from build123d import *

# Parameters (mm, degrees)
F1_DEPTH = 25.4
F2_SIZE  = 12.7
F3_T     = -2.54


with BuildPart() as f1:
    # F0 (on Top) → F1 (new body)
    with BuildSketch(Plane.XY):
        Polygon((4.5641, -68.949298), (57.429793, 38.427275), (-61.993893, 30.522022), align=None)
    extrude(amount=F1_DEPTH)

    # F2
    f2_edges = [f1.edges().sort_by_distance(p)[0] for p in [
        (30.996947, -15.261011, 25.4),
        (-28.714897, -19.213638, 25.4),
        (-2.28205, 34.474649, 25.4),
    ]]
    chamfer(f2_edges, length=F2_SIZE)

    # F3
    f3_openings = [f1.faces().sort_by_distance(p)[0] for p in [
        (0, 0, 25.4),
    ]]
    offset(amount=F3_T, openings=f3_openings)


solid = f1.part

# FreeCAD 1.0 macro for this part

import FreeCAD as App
import Part
import Sketcher
from FreeCAD import Vector
Q = App.Units.Quantity


def edges_at(feature, points):
    """Names of the edges that pass closest to the given points."""
    edges = feature.Shape.Edges
    near = lambda p: min(range(len(edges)), key=lambda i: edges[i].distToShape(Part.Vertex(*p))[0])
    return sorted({f"Edge{near(p) + 1}" for p in points})


def faces_at(feature, points):
    """Names of the faces that lie closest to the given points."""
    faces = feature.Shape.Faces
    near = lambda p: min(range(len(faces)), key=lambda i: faces[i].distToShape(Part.Vertex(*p))[0])
    return sorted({f"Face{near(p) + 1}" for p in points})

doc = App.newDocument("Part")
params = doc.addObject("Spreadsheet::Sheet", "Params")
for row, (alias, value) in enumerate([
    ("pad1_length", "1 in"),
    ("chamfer_size", "0.5 in"),
    ("thickness_wall", "0.1 in"),
], start=1):
    params.set(f"A{row}", alias)
    params.set(f"B{row}", "=" + value)
    params.setAlias(f"B{row}", alias)

body = doc.addObject("PartDesign::Body", "Body")

# Sketch on XY plane
sketch1 = body.newObject("Sketcher::SketchObject", "Sketch")
sketch1.AttachmentSupport = (doc.getObject("XY_Plane"), [""])
sketch1.MapMode = "FlatFace"
sketch1.addGeometry(Part.LineSegment(Vector(5, -69, 0), Vector(57, 38, 0)), False)
sketch1.addGeometry(Part.LineSegment(Vector(57, 38, 0), Vector(-62, 31, 0)), False)
sketch1.addGeometry(Part.LineSegment(Vector(-62, 31, 0), Vector(5, -69, 0)), False)
sketch1.addConstraint(Sketcher.Constraint("Coincident", 0, 2, 1, 1))
sketch1.addConstraint(Sketcher.Constraint("Coincident", 1, 2, 2, 1))
sketch1.addConstraint(Sketcher.Constraint("Coincident", 2, 2, 0, 1))
sketch1.addConstraint(Sketcher.Constraint("Equal", 0, 1))
sketch1.addConstraint(Sketcher.Constraint("Equal", 1, 2))
sketch1.addConstraint(Sketcher.Constraint("DistanceX", -1, 1, 2, 2, Q("4.5641 mm")))
sketch1.addConstraint(Sketcher.Constraint("DistanceY", 2, 2, -1, 1, Q("68.949298 mm")))
sketch1.addConstraint(Sketcher.Constraint("DistanceY", -1, 1, 1, 2, Q("30.522022 mm")))
sketch1.addConstraint(Sketcher.Constraint("Distance", 0, Q("119.685045 mm")))
pad1 = body.newObject("PartDesign::Pad", "Pad")
pad1.Profile = sketch1
pad1.setExpression("Length", "Params.pad1_length")
doc.recompute()

chamfer = body.newObject("PartDesign::Chamfer", "Chamfer")
chamfer.Base = (pad1, edges_at(pad1, [(30.997, -15.261, 25.4), (-28.715, -19.214, 25.4), (-2.282, 34.475, 25.4)]))
chamfer.setExpression("Size", "Params.chamfer_size")
doc.recompute()

thickness = body.newObject("PartDesign::Thickness", "Thickness")
thickness.Base = (chamfer, faces_at(chamfer, [(-1.443, -9.651, 25.4)]))
thickness.setExpression("Value", "Params.thickness_wall")
thickness.Reversed = True
thickness.Join = "Arc"

doc.recompute()
